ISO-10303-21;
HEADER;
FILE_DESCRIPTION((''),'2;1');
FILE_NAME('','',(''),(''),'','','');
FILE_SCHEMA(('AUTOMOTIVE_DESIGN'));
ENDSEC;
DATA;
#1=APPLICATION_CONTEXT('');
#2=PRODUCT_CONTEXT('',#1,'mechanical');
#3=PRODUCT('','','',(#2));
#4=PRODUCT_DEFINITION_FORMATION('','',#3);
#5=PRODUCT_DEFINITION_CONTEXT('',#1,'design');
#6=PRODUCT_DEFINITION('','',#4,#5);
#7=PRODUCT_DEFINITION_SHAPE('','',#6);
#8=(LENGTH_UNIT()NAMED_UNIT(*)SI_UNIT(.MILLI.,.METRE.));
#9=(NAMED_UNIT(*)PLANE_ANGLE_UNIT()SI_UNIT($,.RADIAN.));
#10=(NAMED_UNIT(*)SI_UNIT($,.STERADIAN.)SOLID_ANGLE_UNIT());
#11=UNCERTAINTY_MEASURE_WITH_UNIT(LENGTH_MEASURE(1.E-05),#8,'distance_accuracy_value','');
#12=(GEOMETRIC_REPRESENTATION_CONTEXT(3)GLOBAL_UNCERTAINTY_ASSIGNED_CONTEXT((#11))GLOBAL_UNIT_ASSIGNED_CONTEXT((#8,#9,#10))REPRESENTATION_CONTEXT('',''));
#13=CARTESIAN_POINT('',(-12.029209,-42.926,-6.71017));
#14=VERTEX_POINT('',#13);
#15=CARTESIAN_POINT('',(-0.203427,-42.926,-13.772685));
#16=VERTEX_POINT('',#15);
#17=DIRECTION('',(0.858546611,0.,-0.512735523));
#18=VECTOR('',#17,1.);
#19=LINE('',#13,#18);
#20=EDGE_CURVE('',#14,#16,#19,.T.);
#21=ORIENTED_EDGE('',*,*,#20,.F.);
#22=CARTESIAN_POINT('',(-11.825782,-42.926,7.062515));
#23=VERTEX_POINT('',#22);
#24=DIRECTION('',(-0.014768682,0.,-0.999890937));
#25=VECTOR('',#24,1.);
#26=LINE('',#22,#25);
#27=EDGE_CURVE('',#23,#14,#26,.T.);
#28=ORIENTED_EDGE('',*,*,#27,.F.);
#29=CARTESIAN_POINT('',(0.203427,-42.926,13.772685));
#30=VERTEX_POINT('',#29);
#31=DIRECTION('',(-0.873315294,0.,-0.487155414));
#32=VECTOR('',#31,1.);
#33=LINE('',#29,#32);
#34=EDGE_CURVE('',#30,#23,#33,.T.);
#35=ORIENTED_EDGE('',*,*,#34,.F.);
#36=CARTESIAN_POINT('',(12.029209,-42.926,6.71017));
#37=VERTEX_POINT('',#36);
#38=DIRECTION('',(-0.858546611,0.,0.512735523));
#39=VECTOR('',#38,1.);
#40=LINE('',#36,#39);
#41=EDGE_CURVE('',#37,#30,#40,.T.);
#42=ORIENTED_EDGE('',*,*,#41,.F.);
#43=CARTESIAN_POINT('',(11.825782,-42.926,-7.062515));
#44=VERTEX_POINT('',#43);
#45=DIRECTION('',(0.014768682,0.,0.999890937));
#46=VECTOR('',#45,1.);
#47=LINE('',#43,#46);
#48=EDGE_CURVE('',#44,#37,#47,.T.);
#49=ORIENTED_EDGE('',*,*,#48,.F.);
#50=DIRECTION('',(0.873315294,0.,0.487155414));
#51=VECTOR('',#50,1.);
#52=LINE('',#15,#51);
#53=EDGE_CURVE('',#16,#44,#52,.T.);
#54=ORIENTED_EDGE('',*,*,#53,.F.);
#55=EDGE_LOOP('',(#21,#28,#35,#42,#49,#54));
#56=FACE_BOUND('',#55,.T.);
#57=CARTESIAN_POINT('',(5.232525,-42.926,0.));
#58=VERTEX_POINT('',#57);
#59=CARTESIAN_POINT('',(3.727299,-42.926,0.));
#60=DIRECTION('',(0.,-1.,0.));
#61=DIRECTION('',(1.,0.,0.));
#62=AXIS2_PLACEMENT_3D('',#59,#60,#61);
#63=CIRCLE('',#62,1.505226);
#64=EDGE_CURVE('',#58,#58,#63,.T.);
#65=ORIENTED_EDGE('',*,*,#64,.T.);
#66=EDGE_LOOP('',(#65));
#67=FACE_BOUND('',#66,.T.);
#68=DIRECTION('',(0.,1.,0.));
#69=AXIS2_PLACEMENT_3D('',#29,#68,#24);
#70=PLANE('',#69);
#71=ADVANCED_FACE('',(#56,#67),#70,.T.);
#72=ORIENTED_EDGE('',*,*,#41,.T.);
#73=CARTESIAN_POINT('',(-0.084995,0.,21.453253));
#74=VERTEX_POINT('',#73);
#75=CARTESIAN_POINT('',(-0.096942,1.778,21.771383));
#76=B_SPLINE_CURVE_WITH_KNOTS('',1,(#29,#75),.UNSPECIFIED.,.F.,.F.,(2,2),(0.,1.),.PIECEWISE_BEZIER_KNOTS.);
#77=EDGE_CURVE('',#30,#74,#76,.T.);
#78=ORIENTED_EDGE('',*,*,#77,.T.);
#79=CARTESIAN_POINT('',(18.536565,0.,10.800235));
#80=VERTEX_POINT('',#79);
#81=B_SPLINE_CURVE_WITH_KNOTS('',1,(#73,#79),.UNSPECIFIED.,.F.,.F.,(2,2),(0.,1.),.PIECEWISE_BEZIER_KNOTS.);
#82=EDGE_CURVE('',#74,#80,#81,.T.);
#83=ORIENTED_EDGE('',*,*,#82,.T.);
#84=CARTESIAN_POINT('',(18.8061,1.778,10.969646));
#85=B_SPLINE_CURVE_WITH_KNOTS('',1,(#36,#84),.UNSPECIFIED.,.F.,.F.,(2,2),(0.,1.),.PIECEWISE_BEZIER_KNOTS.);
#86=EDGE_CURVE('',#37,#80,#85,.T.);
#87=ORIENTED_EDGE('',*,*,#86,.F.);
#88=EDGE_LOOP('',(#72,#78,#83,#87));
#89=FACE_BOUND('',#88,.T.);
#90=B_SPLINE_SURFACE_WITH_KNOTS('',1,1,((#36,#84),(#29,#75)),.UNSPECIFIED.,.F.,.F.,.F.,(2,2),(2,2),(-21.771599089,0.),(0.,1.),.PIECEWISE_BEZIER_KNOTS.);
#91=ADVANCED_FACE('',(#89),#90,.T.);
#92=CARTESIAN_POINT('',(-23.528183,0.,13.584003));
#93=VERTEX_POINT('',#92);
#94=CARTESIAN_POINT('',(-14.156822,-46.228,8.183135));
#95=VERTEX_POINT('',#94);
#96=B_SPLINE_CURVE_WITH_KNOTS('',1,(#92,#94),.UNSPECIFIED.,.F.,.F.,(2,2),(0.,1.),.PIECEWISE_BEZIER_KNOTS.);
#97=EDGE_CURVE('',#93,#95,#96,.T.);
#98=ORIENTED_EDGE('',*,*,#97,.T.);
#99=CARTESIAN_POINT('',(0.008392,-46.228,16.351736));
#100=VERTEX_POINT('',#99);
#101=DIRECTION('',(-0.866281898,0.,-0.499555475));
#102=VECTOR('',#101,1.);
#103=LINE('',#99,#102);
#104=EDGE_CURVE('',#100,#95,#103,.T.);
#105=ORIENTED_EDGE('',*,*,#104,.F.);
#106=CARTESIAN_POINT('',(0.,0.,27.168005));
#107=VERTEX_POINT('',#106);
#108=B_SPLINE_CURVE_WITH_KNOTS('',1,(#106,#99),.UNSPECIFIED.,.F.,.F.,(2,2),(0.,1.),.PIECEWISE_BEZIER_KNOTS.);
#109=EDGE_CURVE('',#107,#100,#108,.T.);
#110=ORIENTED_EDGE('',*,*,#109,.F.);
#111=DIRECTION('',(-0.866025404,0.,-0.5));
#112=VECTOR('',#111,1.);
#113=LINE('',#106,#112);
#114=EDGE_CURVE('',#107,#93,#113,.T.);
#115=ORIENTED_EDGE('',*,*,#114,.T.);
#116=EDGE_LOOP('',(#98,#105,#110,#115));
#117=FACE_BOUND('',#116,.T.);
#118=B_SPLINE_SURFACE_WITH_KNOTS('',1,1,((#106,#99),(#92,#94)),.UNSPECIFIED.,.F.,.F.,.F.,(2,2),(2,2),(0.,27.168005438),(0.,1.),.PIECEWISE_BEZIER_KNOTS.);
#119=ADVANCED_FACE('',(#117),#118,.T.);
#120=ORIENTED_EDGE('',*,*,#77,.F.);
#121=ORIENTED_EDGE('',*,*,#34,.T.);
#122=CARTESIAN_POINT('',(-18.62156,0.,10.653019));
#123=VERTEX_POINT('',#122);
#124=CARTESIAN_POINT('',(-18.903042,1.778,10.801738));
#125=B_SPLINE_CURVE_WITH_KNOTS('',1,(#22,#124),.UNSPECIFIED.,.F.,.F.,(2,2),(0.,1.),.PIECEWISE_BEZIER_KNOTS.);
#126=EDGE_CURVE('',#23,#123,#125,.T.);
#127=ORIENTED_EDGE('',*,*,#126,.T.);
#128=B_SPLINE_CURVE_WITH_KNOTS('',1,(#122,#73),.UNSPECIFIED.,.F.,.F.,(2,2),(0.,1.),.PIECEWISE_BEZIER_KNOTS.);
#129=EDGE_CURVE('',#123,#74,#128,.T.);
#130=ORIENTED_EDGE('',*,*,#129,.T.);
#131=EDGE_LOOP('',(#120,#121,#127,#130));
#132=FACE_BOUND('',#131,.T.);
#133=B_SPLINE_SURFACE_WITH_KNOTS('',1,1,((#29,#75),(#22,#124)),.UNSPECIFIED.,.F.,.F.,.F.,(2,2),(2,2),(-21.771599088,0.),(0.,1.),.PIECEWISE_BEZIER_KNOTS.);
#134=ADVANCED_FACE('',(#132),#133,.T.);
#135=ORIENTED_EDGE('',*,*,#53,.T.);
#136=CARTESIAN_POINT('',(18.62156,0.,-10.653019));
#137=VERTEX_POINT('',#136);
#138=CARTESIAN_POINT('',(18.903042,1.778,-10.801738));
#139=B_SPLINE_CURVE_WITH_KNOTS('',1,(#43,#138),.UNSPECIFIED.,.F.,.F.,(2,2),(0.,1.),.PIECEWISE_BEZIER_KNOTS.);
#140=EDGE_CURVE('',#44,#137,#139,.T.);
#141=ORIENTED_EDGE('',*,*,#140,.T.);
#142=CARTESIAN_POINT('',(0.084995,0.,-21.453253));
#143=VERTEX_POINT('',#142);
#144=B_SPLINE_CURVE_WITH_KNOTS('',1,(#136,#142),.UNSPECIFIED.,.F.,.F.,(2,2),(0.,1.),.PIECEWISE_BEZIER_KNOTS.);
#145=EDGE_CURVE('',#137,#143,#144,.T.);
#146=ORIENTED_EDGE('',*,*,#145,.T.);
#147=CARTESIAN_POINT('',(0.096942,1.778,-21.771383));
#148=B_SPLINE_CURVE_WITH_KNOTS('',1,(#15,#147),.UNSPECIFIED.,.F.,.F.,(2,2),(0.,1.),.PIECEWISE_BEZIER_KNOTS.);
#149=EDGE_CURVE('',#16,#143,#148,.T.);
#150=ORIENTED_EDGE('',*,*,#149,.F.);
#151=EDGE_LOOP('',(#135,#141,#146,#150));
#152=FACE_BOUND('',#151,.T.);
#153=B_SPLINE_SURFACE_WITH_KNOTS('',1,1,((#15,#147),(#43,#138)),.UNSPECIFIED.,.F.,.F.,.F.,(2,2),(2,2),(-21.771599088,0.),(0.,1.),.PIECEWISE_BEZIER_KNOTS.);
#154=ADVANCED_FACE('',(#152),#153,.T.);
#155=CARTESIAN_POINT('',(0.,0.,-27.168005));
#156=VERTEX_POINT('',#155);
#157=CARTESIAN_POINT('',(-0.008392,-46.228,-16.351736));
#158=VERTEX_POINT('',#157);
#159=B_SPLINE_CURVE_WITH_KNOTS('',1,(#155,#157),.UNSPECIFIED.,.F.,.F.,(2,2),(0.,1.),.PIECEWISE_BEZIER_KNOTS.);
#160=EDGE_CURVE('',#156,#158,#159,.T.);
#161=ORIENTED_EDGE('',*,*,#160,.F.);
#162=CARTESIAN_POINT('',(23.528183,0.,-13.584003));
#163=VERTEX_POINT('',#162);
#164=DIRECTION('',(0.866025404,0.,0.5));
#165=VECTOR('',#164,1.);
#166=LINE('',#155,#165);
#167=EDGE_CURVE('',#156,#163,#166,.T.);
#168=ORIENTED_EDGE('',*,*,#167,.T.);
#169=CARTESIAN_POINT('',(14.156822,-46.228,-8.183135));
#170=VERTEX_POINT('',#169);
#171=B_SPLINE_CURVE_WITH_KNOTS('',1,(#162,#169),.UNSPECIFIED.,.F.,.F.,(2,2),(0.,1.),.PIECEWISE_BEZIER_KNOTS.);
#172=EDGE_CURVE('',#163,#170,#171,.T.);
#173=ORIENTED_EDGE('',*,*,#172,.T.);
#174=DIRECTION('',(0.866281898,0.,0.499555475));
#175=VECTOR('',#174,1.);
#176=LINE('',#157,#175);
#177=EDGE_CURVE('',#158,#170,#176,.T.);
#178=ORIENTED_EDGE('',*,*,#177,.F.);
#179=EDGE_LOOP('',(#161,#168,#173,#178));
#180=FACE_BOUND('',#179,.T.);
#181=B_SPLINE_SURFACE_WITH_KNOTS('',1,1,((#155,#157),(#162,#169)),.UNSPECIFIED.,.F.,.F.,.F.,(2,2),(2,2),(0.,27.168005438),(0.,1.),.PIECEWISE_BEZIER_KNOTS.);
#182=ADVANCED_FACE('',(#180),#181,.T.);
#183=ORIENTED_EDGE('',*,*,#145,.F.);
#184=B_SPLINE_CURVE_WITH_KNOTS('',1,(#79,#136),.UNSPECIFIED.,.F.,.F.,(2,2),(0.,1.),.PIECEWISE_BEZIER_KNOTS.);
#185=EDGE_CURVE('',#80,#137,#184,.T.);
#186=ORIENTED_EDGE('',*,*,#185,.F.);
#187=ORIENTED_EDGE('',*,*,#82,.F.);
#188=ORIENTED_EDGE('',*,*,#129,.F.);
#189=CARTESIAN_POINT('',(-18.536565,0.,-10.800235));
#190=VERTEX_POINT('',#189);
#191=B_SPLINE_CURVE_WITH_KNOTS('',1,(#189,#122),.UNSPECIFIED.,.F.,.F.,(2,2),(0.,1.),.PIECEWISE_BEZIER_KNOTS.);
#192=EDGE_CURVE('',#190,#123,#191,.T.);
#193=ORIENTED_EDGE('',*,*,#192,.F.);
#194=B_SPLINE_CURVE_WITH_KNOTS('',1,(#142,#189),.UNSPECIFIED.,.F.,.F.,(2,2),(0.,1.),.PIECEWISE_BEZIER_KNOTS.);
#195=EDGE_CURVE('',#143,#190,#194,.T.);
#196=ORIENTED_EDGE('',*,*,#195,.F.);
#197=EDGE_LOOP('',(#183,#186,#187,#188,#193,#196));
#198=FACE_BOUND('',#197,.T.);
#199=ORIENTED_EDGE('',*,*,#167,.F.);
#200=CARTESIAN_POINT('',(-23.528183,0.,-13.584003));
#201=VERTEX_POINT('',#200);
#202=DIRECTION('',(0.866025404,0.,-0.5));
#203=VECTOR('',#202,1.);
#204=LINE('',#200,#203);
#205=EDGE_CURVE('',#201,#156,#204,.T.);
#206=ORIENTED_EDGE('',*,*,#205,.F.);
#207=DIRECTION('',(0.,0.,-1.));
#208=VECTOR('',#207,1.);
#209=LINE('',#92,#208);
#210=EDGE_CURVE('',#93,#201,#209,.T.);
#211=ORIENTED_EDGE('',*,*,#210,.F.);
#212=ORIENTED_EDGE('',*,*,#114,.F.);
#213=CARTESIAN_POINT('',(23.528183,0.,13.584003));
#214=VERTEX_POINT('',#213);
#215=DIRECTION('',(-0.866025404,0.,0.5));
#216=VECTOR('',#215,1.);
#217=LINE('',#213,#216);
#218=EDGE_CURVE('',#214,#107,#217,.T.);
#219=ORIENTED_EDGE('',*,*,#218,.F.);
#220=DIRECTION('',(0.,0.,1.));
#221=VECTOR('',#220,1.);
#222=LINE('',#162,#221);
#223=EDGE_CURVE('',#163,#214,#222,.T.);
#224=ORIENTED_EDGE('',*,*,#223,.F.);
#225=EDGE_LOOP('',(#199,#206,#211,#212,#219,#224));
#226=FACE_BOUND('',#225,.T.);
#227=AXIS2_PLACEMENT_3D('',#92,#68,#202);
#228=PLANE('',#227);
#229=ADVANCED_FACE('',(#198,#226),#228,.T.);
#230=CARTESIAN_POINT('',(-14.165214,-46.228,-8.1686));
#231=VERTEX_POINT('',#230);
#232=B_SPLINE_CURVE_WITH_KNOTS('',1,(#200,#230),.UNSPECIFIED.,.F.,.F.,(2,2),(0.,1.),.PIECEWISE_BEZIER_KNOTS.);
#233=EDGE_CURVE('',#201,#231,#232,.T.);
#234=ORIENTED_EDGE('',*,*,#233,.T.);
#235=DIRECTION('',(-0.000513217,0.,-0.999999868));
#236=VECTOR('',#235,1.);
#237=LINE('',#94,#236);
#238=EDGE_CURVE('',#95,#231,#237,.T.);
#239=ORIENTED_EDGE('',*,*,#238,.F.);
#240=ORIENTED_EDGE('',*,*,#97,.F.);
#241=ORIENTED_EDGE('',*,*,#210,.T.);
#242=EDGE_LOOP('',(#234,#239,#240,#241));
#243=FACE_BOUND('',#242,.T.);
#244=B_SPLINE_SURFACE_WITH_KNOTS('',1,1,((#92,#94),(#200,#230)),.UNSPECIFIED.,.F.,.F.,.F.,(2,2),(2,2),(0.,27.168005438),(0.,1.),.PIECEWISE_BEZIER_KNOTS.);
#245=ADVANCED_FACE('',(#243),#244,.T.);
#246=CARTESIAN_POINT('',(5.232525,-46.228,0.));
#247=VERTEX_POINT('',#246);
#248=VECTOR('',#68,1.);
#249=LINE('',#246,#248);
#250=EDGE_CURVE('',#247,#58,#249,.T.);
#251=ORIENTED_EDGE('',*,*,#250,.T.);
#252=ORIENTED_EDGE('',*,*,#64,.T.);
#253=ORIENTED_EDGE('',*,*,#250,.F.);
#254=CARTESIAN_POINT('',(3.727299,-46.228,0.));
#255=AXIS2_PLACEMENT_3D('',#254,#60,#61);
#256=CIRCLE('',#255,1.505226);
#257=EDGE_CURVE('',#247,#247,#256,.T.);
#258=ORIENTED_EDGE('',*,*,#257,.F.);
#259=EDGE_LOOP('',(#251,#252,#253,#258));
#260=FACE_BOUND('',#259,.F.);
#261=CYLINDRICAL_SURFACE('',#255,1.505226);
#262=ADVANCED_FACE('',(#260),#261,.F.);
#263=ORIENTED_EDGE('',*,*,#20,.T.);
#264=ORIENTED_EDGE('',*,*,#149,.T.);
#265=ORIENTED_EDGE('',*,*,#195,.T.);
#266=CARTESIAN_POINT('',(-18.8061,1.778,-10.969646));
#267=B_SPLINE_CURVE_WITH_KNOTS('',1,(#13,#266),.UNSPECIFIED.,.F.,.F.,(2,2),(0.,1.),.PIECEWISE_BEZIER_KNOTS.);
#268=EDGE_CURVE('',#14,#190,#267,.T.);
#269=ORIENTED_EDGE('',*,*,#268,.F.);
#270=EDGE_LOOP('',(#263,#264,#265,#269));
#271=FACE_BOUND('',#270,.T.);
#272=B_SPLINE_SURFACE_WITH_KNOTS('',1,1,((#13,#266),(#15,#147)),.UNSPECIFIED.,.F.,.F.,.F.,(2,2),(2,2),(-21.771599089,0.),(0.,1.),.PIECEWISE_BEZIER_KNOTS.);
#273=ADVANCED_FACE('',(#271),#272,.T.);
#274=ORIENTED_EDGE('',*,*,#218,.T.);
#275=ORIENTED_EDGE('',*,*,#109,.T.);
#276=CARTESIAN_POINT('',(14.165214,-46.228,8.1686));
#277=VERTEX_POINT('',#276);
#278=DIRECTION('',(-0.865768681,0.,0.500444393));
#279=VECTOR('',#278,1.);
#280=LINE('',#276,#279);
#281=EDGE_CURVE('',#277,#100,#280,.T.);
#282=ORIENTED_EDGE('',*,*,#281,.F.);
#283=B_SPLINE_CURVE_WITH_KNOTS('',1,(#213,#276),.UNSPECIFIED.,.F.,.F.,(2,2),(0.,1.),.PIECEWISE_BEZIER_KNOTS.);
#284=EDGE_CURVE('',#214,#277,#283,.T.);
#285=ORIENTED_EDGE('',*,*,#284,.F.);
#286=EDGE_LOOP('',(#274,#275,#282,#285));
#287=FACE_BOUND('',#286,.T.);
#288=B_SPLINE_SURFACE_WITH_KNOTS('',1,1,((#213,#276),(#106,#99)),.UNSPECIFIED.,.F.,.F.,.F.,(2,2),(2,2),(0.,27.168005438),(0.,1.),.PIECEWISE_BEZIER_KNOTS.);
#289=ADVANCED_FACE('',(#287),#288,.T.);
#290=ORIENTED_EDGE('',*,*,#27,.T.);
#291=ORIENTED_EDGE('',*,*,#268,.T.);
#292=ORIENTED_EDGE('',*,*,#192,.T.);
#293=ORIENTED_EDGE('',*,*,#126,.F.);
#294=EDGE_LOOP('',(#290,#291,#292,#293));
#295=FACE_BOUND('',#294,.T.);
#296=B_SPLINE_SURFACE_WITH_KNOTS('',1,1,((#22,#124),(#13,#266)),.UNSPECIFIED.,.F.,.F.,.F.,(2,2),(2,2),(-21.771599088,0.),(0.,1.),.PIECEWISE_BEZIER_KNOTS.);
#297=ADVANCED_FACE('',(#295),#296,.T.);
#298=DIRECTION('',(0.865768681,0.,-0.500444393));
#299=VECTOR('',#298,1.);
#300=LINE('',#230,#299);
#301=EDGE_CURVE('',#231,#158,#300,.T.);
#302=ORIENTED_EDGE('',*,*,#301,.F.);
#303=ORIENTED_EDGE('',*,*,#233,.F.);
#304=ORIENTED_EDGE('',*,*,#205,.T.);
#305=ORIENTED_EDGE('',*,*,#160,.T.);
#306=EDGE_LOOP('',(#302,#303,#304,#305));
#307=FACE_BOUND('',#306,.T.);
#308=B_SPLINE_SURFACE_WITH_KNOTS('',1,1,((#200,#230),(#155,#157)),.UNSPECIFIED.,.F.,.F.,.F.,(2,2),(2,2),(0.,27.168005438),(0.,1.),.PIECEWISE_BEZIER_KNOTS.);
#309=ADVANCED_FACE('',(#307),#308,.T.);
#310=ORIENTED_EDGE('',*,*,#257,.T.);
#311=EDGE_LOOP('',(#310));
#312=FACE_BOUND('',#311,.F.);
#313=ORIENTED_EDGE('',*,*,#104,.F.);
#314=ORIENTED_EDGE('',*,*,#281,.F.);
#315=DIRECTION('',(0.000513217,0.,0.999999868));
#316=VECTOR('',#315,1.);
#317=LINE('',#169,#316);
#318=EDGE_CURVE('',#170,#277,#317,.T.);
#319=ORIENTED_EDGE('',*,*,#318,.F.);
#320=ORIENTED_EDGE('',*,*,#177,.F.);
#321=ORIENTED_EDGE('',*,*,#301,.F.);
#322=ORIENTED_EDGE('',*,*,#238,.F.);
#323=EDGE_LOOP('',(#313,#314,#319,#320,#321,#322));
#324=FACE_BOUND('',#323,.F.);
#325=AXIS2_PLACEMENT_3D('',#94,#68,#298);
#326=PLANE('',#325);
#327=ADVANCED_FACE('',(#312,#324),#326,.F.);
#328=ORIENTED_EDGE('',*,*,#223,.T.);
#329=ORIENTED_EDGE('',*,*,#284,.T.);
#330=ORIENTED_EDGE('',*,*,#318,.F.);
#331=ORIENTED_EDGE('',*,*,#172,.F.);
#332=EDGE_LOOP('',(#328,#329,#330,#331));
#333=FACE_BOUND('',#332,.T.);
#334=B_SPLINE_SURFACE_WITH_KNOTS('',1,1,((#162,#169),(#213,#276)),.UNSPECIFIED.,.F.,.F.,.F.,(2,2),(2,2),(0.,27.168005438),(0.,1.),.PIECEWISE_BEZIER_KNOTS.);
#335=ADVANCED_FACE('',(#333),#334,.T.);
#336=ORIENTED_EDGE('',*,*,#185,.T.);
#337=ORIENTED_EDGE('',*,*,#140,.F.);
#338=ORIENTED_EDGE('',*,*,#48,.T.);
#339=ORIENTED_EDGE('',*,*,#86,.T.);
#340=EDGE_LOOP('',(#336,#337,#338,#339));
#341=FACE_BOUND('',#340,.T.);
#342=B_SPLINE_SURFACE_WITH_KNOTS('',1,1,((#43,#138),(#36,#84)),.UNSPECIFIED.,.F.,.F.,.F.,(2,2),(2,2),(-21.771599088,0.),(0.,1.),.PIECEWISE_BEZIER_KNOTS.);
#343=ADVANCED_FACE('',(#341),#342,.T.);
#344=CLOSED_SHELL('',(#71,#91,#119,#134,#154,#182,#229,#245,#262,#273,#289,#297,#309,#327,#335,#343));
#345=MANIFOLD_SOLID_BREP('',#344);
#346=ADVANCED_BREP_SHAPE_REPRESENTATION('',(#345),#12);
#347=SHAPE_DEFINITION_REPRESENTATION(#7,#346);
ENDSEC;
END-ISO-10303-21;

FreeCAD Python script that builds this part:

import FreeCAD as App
import Part
import Sketcher
Q = App.Units.Quantity


def add_polygon(sketch, points):
    """Adds a closed chain of lines whose ends are joined by coincident constraints."""
    first, n = sketch.GeometryCount, len(points)
    for a, b in zip(points, points[1:] + points[:1]):
        sketch.addGeometry(Part.LineSegment(App.Vector(*a, 0), App.Vector(*b, 0)), False)
    for i in range(n):
        sketch.addConstraint(Sketcher.Constraint("Coincident", first + i, 2, first + (i + 1) % n, 1))

doc = App.newDocument("Part")
body = doc.addObject("PartDesign::Body", "Body")

# Sketch on XZ plane
sketch1 = body.newObject("Sketcher::SketchObject", "Sketch")
sketch1.AttachmentSupport = (doc.getObject("XZ_Plane"), [""])
sketch1.MapMode = "FlatFace"
add_polygon(sketch1, [(-24, 14), (-24, -14), (0, -27), (24, -14), (24, 14), (0, 27)])  # lines 0-5
sketch1.addConstraint(Sketcher.Constraint("Vertical", 0))
sketch1.addConstraint(Sketcher.Constraint("Vertical", 3))
sketch1.addConstraint(Sketcher.Constraint("Symmetric", 0, 2, 3, 2, -1, 1))
sketch1.addConstraint(Sketcher.Constraint("Symmetric", 1, 2, 4, 2, -1, 1))
sketch1.addConstraint(Sketcher.Constraint("PointOnObject", 1, 2, -2))
sketch1.addConstraint(Sketcher.Constraint("Parallel", 2, 5))
sketch1.addConstraint(Sketcher.Constraint("Horizontal", 0, 2, 2, 2))
sketch1.addConstraint(Sketcher.Constraint("Angle", 1, Q("-30 deg")))
sketch1.addConstraint(Sketcher.Constraint("DistanceY", 0, 2, 0, 1, 27.168005))
sketch1.addConstraint(Sketcher.Constraint("DistanceY", 1, 2, 3, 2, 40.752008))

# Sketch on XZ plane
sketch2 = body.newObject("Sketcher::SketchObject", "Sketch001")
sketch2.AttachmentSupport = (doc.getObject("XZ_Plane"), [""])
sketch2.MapMode = "FlatFace"
sketch2.AttachmentOffset = App.Placement(App.Vector(0, 0, 1.82 * 25.4), App.Rotation())
add_polygon(sketch2, [(14, 8), (0, 16), (-14, 8), (-14, -8), (0, -16), (14, -8)])  # lines 0-5
sketch2.addConstraint(Sketcher.Constraint("Symmetric", 0, 2, 3, 2, -1, 1))
sketch2.addConstraint(Sketcher.Constraint("Symmetric", 1, 2, 4, 2, -1, 1))
sketch2.addConstraint(Sketcher.Constraint("Symmetric", 2, 2, 5, 2, -1, 1))
sketch2.addConstraint(Sketcher.Constraint("Equal", 0, 1))
sketch2.addConstraint(Sketcher.Constraint("Equal", 1, 2))
sketch2.addConstraint(Sketcher.Constraint("DistanceY", 2, 2, -1, 1, 8.1686))
sketch2.addConstraint(Sketcher.Constraint("DistanceY", 1, 2, 0, 2, 8.1686))
sketch2.addConstraint(Sketcher.Constraint("DistanceX", -1, 1, 0, 2, 0.008392))
sketch2.addConstraint(Sketcher.Constraint("DistanceX", 2, 2, 1, 2, 0.008392))

additiveloft = body.newObject("PartDesign::AdditiveLoft", "AdditiveLoft")
additiveloft.Profile = sketch1
additiveloft.Sections = [sketch2]

# Sketch on XZ plane
sketch3 = body.newObject("Sketcher::SketchObject", "Sketch002")
sketch3.AttachmentSupport = (doc.getObject("XZ_Plane"), [""])
sketch3.MapMode = "FlatFace"
sketch3.AttachmentOffset = App.Placement(App.Vector(0, 0, 1.69 * 25.4), App.Rotation())
add_polygon(sketch3, [(0, 14), (-12, 7), (-12, -7), (0, -14), (12, -7), (12, 7)])  # lines 0-5
sketch3.addConstraint(Sketcher.Constraint("Symmetric", 0, 2, 3, 2, -1, 1))
sketch3.addConstraint(Sketcher.Constraint("Symmetric", 1, 2, 4, 2, -1, 1))
sketch3.addConstraint(Sketcher.Constraint("Symmetric", 2, 2, 5, 2, -1, 1))
sketch3.addConstraint(Sketcher.Constraint("Equal", 0, 1))
sketch3.addConstraint(Sketcher.Constraint("Equal", 1, 2))
sketch3.addConstraint(Sketcher.Constraint("DistanceX", 2, 2, 4, 2, Q("0.4815998 in")))
sketch3.addConstraint(Sketcher.Constraint("DistanceY", 2, 2, 0, 2, 20.8352))
sketch3.addConstraint(Sketcher.Constraint("DistanceX", 0, 2, -1, 1, 11.825782))
sketch3.addConstraint(Sketcher.Constraint("DistanceX", 1, 2, -1, 1, 12.029209))

# Sketch on XZ plane
sketch4 = body.newObject("Sketcher::SketchObject", "Sketch003")
sketch4.AttachmentSupport = (doc.getObject("XZ_Plane"), [""])
sketch4.MapMode = "FlatFace"
sketch4.AttachmentOffset = App.Placement(App.Vector(0, 0, -0.07 * 25.4), App.Rotation())
add_polygon(sketch4, [(0, 22), (19, 11), (19, -11), (0, -22), (-19, -11), (-19, 11)])  # lines 0-5
sketch4.addConstraint(Sketcher.Constraint("Symmetric", 0, 2, 3, 2, -1, 1))
sketch4.addConstraint(Sketcher.Constraint("Symmetric", 1, 2, 4, 2, -1, 1))
sketch4.addConstraint(Sketcher.Constraint("Symmetric", 2, 2, 5, 2, -1, 1))
sketch4.addConstraint(Sketcher.Constraint("Equal", 0, 1))
sketch4.addConstraint(Sketcher.Constraint("Equal", 1, 2))
sketch4.addConstraint(Sketcher.Constraint("Distance", 0, 21.771599))
sketch4.addConstraint(Sketcher.Constraint("DistanceX", -1, 1, 0, 2, 18.8061))
sketch4.addConstraint(Sketcher.Constraint("DistanceX", 2, 2, 1, 2, 18.8061))
sketch4.addConstraint(Sketcher.Constraint("DistanceX", -1, 1, 1, 2, 18.903042))

subtractiveloft = body.newObject("PartDesign::SubtractiveLoft", "SubtractiveLoft")
subtractiveloft.Profile = sketch3
subtractiveloft.Sections = [sketch4]

# Sketch on XZ plane
sketch5 = body.newObject("Sketcher::SketchObject", "Sketch004")
sketch5.AttachmentSupport = (doc.getObject("XZ_Plane"), [""])
sketch5.MapMode = "FlatFace"
sketch5.AttachmentOffset = App.Placement(App.Vector(0, 0, 1.82 * 25.4), App.Rotation())
sketch5.addGeometry(Part.Circle(App.Vector(3.7, 0, 0), App.Vector(0, 0, 1), 1.5), False)
sketch5.addConstraint(Sketcher.Constraint("PointOnObject", 0, 3, -1))
sketch5.addConstraint(Sketcher.Constraint("Diameter", 0, 3.010451))
sketch5.addConstraint(Sketcher.Constraint("DistanceX", -1, 1, 0, 3, 3.727299))
pocket1 = body.newObject("PartDesign::Pocket", "Pocket")
pocket1.Profile = sketch5
pocket1.Length = Q("0.18 in")

doc.recompute()
